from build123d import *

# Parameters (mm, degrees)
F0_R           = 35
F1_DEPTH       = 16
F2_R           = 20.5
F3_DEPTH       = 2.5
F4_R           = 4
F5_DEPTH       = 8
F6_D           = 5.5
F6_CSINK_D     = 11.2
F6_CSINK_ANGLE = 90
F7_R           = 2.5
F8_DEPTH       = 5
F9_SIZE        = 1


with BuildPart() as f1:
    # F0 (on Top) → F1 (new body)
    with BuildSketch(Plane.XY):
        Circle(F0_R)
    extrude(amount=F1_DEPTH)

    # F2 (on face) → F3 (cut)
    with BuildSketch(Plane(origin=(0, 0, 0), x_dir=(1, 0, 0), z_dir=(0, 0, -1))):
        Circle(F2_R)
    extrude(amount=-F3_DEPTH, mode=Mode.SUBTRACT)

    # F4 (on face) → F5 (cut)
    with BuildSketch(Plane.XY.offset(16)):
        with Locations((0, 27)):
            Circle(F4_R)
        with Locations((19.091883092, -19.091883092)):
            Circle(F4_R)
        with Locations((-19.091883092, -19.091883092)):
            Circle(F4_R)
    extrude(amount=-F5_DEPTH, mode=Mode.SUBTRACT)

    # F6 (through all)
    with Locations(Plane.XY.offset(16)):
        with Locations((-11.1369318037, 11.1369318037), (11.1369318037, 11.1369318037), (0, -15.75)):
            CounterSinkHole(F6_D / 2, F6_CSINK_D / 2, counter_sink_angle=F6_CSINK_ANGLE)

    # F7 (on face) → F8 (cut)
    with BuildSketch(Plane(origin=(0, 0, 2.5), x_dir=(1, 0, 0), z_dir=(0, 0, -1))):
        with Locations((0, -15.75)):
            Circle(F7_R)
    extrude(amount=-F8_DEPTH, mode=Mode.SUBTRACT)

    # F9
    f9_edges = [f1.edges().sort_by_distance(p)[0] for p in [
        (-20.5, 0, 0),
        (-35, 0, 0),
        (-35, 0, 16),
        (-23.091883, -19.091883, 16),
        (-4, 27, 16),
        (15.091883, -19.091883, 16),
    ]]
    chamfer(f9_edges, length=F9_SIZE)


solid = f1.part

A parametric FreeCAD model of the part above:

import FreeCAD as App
import Part
import Sketcher
from FreeCAD import Vector
Q = App.Units.Quantity


def edges_at(feature, points):
    """Names of the edges that pass closest to the given points."""
    edges = feature.Shape.Edges
    near = lambda p: min(range(len(edges)), key=lambda i: edges[i].distToShape(Part.Vertex(*p))[0])
    return sorted({f"Edge{near(p) + 1}" for p in points})

doc = App.newDocument("Part")
body = doc.addObject("PartDesign::Body", "Body")

sketch1 = doc.addObject("Sketcher::SketchObject", "Sketch")
body.addObject(sketch1)
sketch1.AttachmentSupport = (doc.XY_Plane, [""])
sketch1.MapMode = "FlatFace"
sketch1.addGeometry(Part.Circle(Vector(0, 0, 0), Vector(0, 0, 1), 35), False)
sketch1.addConstraint([
    Sketcher.Constraint("Coincident", 0, 3, -1, 1),
    Sketcher.Constraint("Diameter", 0, Q("70 mm")),
])
pad1 = doc.addObject("PartDesign::Pad", "Pad")
body.addObject(pad1)
pad1.Profile = sketch1
pad1.Length = 16

sketch2 = doc.addObject("Sketcher::SketchObject", "Sketch001")
body.addObject(sketch2)
sketch2.AttachmentSupport = (doc.XY_Plane, [""])
sketch2.MapMode = "FlatFace"
sketch2.addGeometry(Part.Circle(Vector(0, 0, 0), Vector(0, 0, 1), 20.5), False)
sketch2.addConstraint([
    Sketcher.Constraint("Coincident", 0, 3, -1, 1),
    Sketcher.Constraint("Diameter", 0, Q("41 mm")),
])
pocket1 = doc.addObject("PartDesign::Pocket", "Pocket")
body.addObject(pocket1)
pocket1.Profile = sketch2
pocket1.Length = 2.5
pocket1.Reversed = True

sketch3 = doc.addObject("Sketcher::SketchObject", "Sketch002")
body.addObject(sketch3)
sketch3.AttachmentSupport = (doc.XY_Plane, [""])
sketch3.MapMode = "FlatFace"
sketch3.AttachmentOffset = App.Placement(Vector(0, 0, 16), App.Rotation())
sketch3.addGeometry([
    Part.Circle(Vector(0, 27, 0), Vector(0, 0, 1), 4),
    Part.Circle(Vector(19.091883, -19.091883, 0), Vector(0, 0, 1), 4),
    Part.Circle(Vector(-19.091883, -19.091883, 0), Vector(0, 0, 1), 4),
], False)
sketch3.addConstraint([
    Sketcher.Constraint("Equal", 0, 1),
    Sketcher.Constraint("Equal", 1, 2),
    Sketcher.Constraint("Symmetric", 1, 3, 2, 3, -2),
    Sketcher.Constraint("PointOnObject", 0, 3, -2),
    Sketcher.Constraint("Diameter", 0, Q("8 mm")),
    Sketcher.Constraint("DistanceY", -1, 1, 0, 3, Q("27 mm")),
    Sketcher.Constraint("DistanceX", -1, 1, 1, 3, Q("19.091883 mm")),
    Sketcher.Constraint("DistanceY", 1, 3, -1, 1, Q("19.091883 mm")),
])
pocket2 = doc.addObject("PartDesign::Pocket", "Pocket001")
body.addObject(pocket2)
pocket2.Profile = sketch3
pocket2.Length = 8

sketch4 = doc.addObject("Sketcher::SketchObject", "Sketch003")
body.addObject(sketch4)
sketch4.AttachmentSupport = (doc.XY_Plane, [""])
sketch4.MapMode = "FlatFace"
sketch4.AttachmentOffset = App.Placement(Vector(0, 0, 16), App.Rotation())
sketch4.addGeometry([
    Part.Circle(Vector(-11.136932, 11.136932, 0), Vector(0, 0, 1), 2.75),
    Part.Circle(Vector(11.136932, 11.136932, 0), Vector(0, 0, 1), 2.75),
    Part.Circle(Vector(0, -15.75, 0), Vector(0, 0, 1), 2.75),
], False)
sketch4.addConstraint([
    Sketcher.Constraint("Equal", 0, 1),
    Sketcher.Constraint("Equal", 1, 2),
    Sketcher.Constraint("Symmetric", 0, 3, 1, 3, -2),
    Sketcher.Constraint("PointOnObject", 2, 3, -2),
    Sketcher.Constraint("Diameter", 0, Q("5.5 mm")),
    Sketcher.Constraint("DistanceY", 2, 3, -1, 1, Q("15.75 mm")),
    Sketcher.Constraint("DistanceX", 0, 3, -1, 1, Q("11.136932 mm")),
    Sketcher.Constraint("DistanceY", -1, 1, 0, 3, Q("11.136932 mm")),
])
doc.recompute()
hole = doc.addObject("PartDesign::Hole", "Hole")
body.addObject(hole)
hole.Profile = sketch4
hole.ThreadType = "None"
hole.Diameter = 5.5
hole.DepthType = "ThroughAll"
hole.HoleCutType = "Countersink"
hole.HoleCutDiameter = 11.2
hole.HoleCutCountersinkAngle = 90

sketch5 = doc.addObject("Sketcher::SketchObject", "Sketch004")
body.addObject(sketch5)
sketch5.AttachmentSupport = (doc.XY_Plane, [""])
sketch5.MapMode = "FlatFace"
sketch5.AttachmentOffset = App.Placement(Vector(0, 0, 2.5), App.Rotation())
sketch5.addGeometry(Part.Circle(Vector(0, 15.75, 0), Vector(0, 0, 1), 2.5), False)
sketch5.addConstraint([
    Sketcher.Constraint("PointOnObject", 0, 3, -2),
    Sketcher.Constraint("Diameter", 0, Q("5 mm")),
    Sketcher.Constraint("DistanceY", -1, 1, 0, 3, Q("15.75 mm")),
])
pocket3 = doc.addObject("PartDesign::Pocket", "Pocket002")
body.addObject(pocket3)
pocket3.Profile = sketch5
pocket3.Length = 5
pocket3.Reversed = True
doc.recompute()

chamfer = doc.addObject("PartDesign::Chamfer", "Chamfer")
body.addObject(chamfer)
chamfer.Base = (pocket3, edges_at(pocket3, [
    (-20.5, 0, 0),
    (-35, 0, 0),
    (-35, 0, 16),
    (-23.092, -19.092, 16),
    (-4, 27, 16),
    (15.092, -19.092, 16),
]))
chamfer.Size = 1

doc.recompute()
